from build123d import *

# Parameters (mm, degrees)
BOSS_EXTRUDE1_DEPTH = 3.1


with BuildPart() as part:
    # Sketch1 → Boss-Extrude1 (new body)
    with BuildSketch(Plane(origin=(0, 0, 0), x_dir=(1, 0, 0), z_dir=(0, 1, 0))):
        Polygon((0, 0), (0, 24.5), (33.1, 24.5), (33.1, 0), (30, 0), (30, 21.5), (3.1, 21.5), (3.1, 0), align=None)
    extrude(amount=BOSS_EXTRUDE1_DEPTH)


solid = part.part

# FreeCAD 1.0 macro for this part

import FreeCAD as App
import Part
import Sketcher
from FreeCAD import Vector


def add_polygon(sketch, points):
    """Adds a closed chain of lines whose ends are joined by coincident constraints."""
    first, n = sketch.GeometryCount, len(points)
    for a, b in zip(points, points[1:] + points[:1]):
        sketch.addGeometry(Part.LineSegment(App.Vector(*a, 0), App.Vector(*b, 0)), False)
    for i in range(n):
        sketch.addConstraint(Sketcher.Constraint("Coincident", first + i, 2, first + (i + 1) % n, 1))

doc = App.newDocument("Part")
body = doc.addObject("PartDesign::Body", "Body")

sketch1 = doc.addObject("Sketcher::SketchObject", "Sketch")
body.addObject(sketch1)
sketch1.AttachmentSupport = (doc.XZ_Plane, [""])
sketch1.MapMode = "FlatFace"
add_polygon(sketch1, [(0, -24.5), (0, 0), (3.1, 0), (3.1, -21.5), (30, -21.5), (30, 0), (33.1, 0), (33.1, -24.5)])
sketch1.addConstraint(Sketcher.Constraint("Vertical", 0))
sketch1.addConstraint(Sketcher.Constraint("Horizontal", 1))
sketch1.addConstraint(Sketcher.Constraint("Vertical", 2))
sketch1.addConstraint(Sketcher.Constraint("Horizontal", 3))
sketch1.addConstraint(Sketcher.Constraint("Vertical", 4))
sketch1.addConstraint(Sketcher.Constraint("Horizontal", 5))
sketch1.addConstraint(Sketcher.Constraint("Vertical", 6))
sketch1.addConstraint(Sketcher.Constraint("Horizontal", 7))
sketch1.addConstraint(Sketcher.Constraint("Coincident", 0, 2, -1, 1))
sketch1.addConstraint(Sketcher.Constraint("PointOnObject", 4, 2, -1))
sketch1.addConstraint(Sketcher.Constraint("Equal", 1, 5))
sketch1.addConstraint(Sketcher.Constraint("DistanceX", 1, 1, 1, 2, 3.1))
sketch1.addConstraint(Sketcher.Constraint("DistanceX", 3, 1, 3, 2, 26.9))
sketch1.addConstraint(Sketcher.Constraint("DistanceY", 0, 1, 0, 2, 24.5))
sketch1.addConstraint(Sketcher.Constraint("DistanceY", 2, 2, 2, 1, 21.5))
pad1 = doc.addObject("PartDesign::Pad", "Pad")
body.addObject(pad1)
pad1.Profile = sketch1
pad1.Length = 3.1
pad1.Reversed = True

doc.recompute()
